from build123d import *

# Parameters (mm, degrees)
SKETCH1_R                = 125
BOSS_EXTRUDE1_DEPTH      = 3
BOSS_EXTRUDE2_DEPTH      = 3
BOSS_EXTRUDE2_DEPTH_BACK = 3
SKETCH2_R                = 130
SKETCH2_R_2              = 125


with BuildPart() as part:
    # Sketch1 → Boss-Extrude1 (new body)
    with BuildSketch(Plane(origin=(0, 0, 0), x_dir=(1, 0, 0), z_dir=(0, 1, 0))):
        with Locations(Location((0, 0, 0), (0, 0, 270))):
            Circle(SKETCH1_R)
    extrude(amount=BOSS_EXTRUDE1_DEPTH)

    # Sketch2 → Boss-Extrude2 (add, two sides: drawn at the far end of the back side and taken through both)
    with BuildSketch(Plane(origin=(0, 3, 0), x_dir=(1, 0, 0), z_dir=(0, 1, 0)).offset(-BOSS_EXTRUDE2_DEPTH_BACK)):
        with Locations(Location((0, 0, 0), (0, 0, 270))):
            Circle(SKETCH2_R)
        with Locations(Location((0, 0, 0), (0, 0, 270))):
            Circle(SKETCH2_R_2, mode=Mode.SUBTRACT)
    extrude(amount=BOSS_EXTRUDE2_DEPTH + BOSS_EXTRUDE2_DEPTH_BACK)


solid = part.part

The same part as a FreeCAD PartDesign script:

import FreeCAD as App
import Part
import Sketcher

V = App.Vector

doc = App.newDocument("Part")
body = doc.addObject("PartDesign::Body", "Body")

# Sketch on XZ plane
sketch1 = body.newObject("Sketcher::SketchObject", "Sketch")
sketch1.AttachmentSupport = (doc.getObject("XZ_Plane"), [""])
sketch1.MapMode = "FlatFace"
sketch1.addGeometry(Part.Circle(V(0, 0, 0), V(0, 0, 1), 125), False)
sketch1.addConstraint(Sketcher.Constraint("Coincident", 0, 3, -1, 1))
sketch1.addConstraint(Sketcher.Constraint("Diameter", 0, 250.0))
pad1 = body.newObject("PartDesign::Pad", "Pad")
pad1.Profile = sketch1
pad1.Length = 3
pad1.Reversed = True

# Sketch on XZ plane
sketch2 = body.newObject("Sketcher::SketchObject", "Sketch001")
sketch2.AttachmentSupport = (doc.getObject("XZ_Plane"), [""])
sketch2.MapMode = "FlatFace"
sketch2.AttachmentOffset = App.Placement(V(0, 0, -3), App.Rotation())
sketch2.addGeometry(Part.Circle(V(0, 0, 0), V(0, 0, 1), 130), False)
sketch2.addGeometry(Part.Circle(V(0, 0, 0), V(0, 0, 1), 125), False)
sketch2.addConstraint(Sketcher.Constraint("Coincident", 0, 3, -1, 1))
sketch2.addConstraint(Sketcher.Constraint("Coincident", 1, 3, -1, 1))
sketch2.addConstraint(Sketcher.Constraint("Diameter", 0, 260.0))
sketch2.addConstraint(Sketcher.Constraint("Diameter", 1, 250.0))
pad2 = body.newObject("PartDesign::Pad", "Pad001")
pad2.Profile = sketch2
pad2.Type = "TwoLengths"
pad2.Length = 3
pad2.Length2 = 3
pad2.Reversed = True

doc.recompute()
